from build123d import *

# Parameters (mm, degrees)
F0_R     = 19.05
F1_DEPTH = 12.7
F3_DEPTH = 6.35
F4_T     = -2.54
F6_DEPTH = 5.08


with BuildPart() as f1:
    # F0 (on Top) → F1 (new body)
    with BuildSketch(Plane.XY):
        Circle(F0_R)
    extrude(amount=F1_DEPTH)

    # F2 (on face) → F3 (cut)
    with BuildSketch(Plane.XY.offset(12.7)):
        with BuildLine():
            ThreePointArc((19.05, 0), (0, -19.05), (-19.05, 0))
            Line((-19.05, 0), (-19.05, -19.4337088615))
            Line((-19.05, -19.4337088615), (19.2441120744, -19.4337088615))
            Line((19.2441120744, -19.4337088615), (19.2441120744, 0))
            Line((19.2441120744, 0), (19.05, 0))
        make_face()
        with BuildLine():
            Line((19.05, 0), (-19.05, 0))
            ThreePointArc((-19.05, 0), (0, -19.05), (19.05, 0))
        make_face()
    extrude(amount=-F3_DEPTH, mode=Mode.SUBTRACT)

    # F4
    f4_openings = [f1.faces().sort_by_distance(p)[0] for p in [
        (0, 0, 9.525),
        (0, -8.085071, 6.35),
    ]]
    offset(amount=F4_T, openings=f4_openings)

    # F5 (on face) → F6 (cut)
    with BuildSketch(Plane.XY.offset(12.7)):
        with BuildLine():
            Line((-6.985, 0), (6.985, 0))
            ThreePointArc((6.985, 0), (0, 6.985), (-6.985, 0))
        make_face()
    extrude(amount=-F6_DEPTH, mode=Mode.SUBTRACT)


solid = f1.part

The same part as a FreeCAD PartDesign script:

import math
import FreeCAD as App
import Part
import Sketcher
Q = App.Units.Quantity


def faces_at(feature, points):
    """Names of the faces that lie closest to the given points."""
    faces = feature.Shape.Faces
    near = lambda p: min(range(len(faces)), key=lambda i: faces[i].distToShape(Part.Vertex(*p))[0])
    return sorted({f"Face{near(p) + 1}" for p in points})


def add_polygon(sketch, points):
    """Adds a closed chain of lines whose ends are joined by coincident constraints."""
    first, n = sketch.GeometryCount, len(points)
    for a, b in zip(points, points[1:] + points[:1]):
        sketch.addGeometry(Part.LineSegment(App.Vector(*a, 0), App.Vector(*b, 0)), False)
    for i in range(n):
        sketch.addConstraint(Sketcher.Constraint("Coincident", first + i, 2, first + (i + 1) % n, 1))

doc = App.newDocument("Part")
body = doc.addObject("PartDesign::Body", "Body")

# Sketch on XY plane
sketch1 = body.newObject("Sketcher::SketchObject", "Sketch")
sketch1.AttachmentSupport = (doc.getObject("XY_Plane"), [""])
sketch1.MapMode = "FlatFace"
sketch1.addGeometry(Part.Circle(App.Vector(0, 0, 0), App.Vector(0, 0, 1), 19.05), False)
sketch1.addConstraint([
    Sketcher.Constraint("Coincident", 0, 3, -1, 1),
    Sketcher.Constraint("Diameter", 0, Q("1.5 in")),
])
pad1 = body.newObject("PartDesign::Pad", "Pad")
pad1.Profile = sketch1
pad1.Length = Q("0.5 in")

# Sketch on XY plane
sketch2 = body.newObject("Sketcher::SketchObject", "Sketch001")
sketch2.AttachmentSupport = (doc.getObject("XY_Plane"), [""])
sketch2.MapMode = "FlatFace"
sketch2.AttachmentOffset = App.Placement(App.Vector(0, 0, 0.5 * 25.4), App.Rotation())
add_polygon(sketch2, [(-19.05, 0), (-19.05, -19.433709), (19.244112, -19.433709), (19.244112, 0)])  # lines 0-3
sketch2.addConstraint([
    Sketcher.Constraint("Vertical", 0),
    Sketcher.Constraint("Horizontal", 1),
    Sketcher.Constraint("Vertical", 2),
    Sketcher.Constraint("Horizontal", 3),
    Sketcher.Constraint("PointOnObject", 2, 2, -1),
    Sketcher.Constraint("DistanceX", 0, 2, -1, 1, Q("0.75 in")),
    Sketcher.Constraint("DistanceY", 0, 2, 0, 1, 19.433709),
    Sketcher.Constraint("DistanceX", 1, 1, 1, 2, 38.294112),
])
pocket1 = body.newObject("PartDesign::Pocket", "Pocket")
pocket1.Profile = sketch2
pocket1.Length = Q("0.25 in")
doc.recompute()

thickness = body.newObject("PartDesign::Thickness", "Thickness")
thickness.Base = (pocket1, faces_at(pocket1, [(0, 0, 9.525), (0, -9.525, 6.35)]))
thickness.Value = Q("0.1 in")
thickness.Reversed = True
thickness.Join = "Arc"

# Sketch on XY plane
sketch3 = body.newObject("Sketcher::SketchObject", "Sketch002")
sketch3.AttachmentSupport = (doc.getObject("XY_Plane"), [""])
sketch3.MapMode = "FlatFace"
sketch3.AttachmentOffset = App.Placement(App.Vector(0, 0, 0.5 * 25.4), App.Rotation())
sketch3.addGeometry([
    Part.LineSegment(App.Vector(-6.985, 0, 0), App.Vector(6.985, 0, 0)),
    Part.ArcOfCircle(Part.Circle(App.Vector(0, 0, 0), App.Vector(0, 0, 1), 6.985), math.radians(0), math.radians(180)),
], False)
sketch3.addConstraint([
    Sketcher.Constraint("Coincident", 0, 1, 1, 2),
    Sketcher.Constraint("Coincident", 1, 1, 0, 2),
    Sketcher.Constraint("Horizontal", 0),
    Sketcher.Constraint("Coincident", 1, 3, -1, 1),
    Sketcher.Constraint("PointOnObject", 0, 1, -1),
    Sketcher.Constraint("Radius", 1, Q("0.275 in")),
])
pocket2 = body.newObject("PartDesign::Pocket", "Pocket001")
pocket2.Profile = sketch3
pocket2.Length = Q("0.2 in")

doc.recompute()
